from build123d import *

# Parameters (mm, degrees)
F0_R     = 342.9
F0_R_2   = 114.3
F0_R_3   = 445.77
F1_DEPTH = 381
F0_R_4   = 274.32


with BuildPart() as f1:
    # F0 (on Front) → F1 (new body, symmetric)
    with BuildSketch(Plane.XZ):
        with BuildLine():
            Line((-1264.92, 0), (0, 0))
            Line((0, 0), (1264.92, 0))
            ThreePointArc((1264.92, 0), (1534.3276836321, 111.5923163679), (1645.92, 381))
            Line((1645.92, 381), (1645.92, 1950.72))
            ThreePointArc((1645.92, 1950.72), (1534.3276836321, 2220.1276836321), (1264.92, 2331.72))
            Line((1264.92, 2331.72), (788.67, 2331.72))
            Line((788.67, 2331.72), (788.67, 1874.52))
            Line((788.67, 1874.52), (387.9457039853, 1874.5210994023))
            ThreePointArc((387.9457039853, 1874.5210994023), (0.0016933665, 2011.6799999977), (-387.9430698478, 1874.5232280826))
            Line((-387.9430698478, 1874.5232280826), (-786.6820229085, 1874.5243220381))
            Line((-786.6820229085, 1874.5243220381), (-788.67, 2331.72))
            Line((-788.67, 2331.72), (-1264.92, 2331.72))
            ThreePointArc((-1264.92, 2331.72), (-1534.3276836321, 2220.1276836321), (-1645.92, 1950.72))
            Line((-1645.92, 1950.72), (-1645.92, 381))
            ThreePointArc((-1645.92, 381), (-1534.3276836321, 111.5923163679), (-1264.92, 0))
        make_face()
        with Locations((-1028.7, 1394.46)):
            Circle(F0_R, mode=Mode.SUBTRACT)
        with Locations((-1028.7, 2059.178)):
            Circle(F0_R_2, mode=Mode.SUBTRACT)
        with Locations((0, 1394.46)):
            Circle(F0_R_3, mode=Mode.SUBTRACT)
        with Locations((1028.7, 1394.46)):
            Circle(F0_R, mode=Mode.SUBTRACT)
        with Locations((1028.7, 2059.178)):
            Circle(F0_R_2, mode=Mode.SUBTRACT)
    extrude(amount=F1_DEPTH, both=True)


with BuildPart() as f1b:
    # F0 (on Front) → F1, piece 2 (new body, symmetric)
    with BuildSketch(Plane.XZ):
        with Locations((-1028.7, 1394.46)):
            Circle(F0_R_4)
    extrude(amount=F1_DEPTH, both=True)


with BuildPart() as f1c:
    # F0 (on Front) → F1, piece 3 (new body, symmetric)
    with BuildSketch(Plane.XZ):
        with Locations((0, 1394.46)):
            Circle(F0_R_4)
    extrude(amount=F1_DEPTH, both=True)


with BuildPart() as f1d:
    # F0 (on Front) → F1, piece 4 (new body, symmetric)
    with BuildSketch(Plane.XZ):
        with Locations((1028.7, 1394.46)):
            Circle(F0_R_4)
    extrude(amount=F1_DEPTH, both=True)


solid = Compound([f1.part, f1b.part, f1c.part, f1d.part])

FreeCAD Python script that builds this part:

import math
import FreeCAD as App
import Part
import Sketcher
Q = App.Units.Quantity

doc = App.newDocument("Part")
body = doc.addObject("PartDesign::Body", "Body")

# Sketch on XZ plane
sketch1 = doc.addObject("Sketcher::SketchObject", "Sketch")
body.addObject(sketch1)
sketch1.AttachmentSupport = (doc.XZ_Plane, [""])
sketch1.MapMode = "FlatFace"
sketch1.addGeometry([
    Part.LineSegment(App.Vector(-1264.92, 0, 0), App.Vector(1264.92, 0, 0)),  # 0
    Part.ArcOfCircle(Part.Circle(App.Vector(1264.92, 381, 0), App.Vector(0, 0, 1), 381), math.radians(-90), math.radians(0)),  # 1
    Part.LineSegment(App.Vector(1645.92, 381, 0), App.Vector(1645.92, 1950.72, 0)),  # 2
    Part.ArcOfCircle(Part.Circle(App.Vector(1264.92, 1950.72, 0), App.Vector(0, 0, 1), 381), math.radians(0), math.radians(90)),  # 3
    Part.LineSegment(App.Vector(1264.92, 2331.72, 0), App.Vector(788.67, 2331.72, 0)),  # 4
    Part.LineSegment(App.Vector(788.67, 2331.72, 0), App.Vector(788.67, 1874.52, 0)),  # 5
    Part.LineSegment(App.Vector(788.67, 1874.52, 0), App.Vector(387.945704, 1874.521099, 0)),  # 6
    Part.ArcOfCircle(Part.Circle(App.Vector(0, 1394.46, 0), App.Vector(0, 0, 1), 617.22), math.radians(51.057721), math.radians(128.941965)),  # 7
    Part.LineSegment(App.Vector(-387.94307, 1874.523228, 0), App.Vector(-786.682023, 1874.524322, 0)),  # 8
    Part.LineSegment(App.Vector(-786.682023, 1874.524322, 0), App.Vector(-788.67, 2331.72, 0)),  # 9
    Part.LineSegment(App.Vector(-788.67, 2331.72, 0), App.Vector(-1264.92, 2331.72, 0)),  # 10
    Part.ArcOfCircle(Part.Circle(App.Vector(-1264.92, 1950.72, 0), App.Vector(0, 0, 1), 381), math.radians(90), math.radians(180)),  # 11
    Part.LineSegment(App.Vector(-1645.92, 1950.72, 0), App.Vector(-1645.92, 381, 0)),  # 12
    Part.ArcOfCircle(Part.Circle(App.Vector(-1264.92, 381, 0), App.Vector(0, 0, 1), 381), math.radians(180), math.radians(270)),  # 13
    Part.Circle(App.Vector(-1028.7, 1394.46, 0), App.Vector(0, 0, 1), 342.9),  # 14
    Part.Circle(App.Vector(0, 1394.46, 0), App.Vector(0, 0, 1), 445.77),  # 15
    Part.Circle(App.Vector(1028.7, 1394.46, 0), App.Vector(0, 0, 1), 342.9),  # 16
    Part.Circle(App.Vector(-1028.7, 2059.178, 0), App.Vector(0, 0, 1), 114.3),  # 17
    Part.Circle(App.Vector(1028.7, 2059.178, 0), App.Vector(0, 0, 1), 114.3),  # 18
], False)
sketch1.addConstraint([
    Sketcher.Constraint("Tangent", 0, 2, 1, 1),
    Sketcher.Constraint("Tangent", 1, 2, 2, 1),
    Sketcher.Constraint("Tangent", 2, 2, 3, 1),
    Sketcher.Constraint("Tangent", 3, 2, 4, 1),
    Sketcher.Constraint("Coincident", 4, 2, 5, 1),
    Sketcher.Constraint("Coincident", 5, 2, 6, 1),
    Sketcher.Constraint("Coincident", 6, 2, 7, 1),
    Sketcher.Constraint("Coincident", 7, 2, 8, 1),
    Sketcher.Constraint("Coincident", 8, 2, 9, 1),
    Sketcher.Constraint("Coincident", 9, 2, 10, 1),
    Sketcher.Constraint("Tangent", 10, 2, 11, 1),
    Sketcher.Constraint("Tangent", 11, 2, 12, 1),
    Sketcher.Constraint("Tangent", 12, 2, 13, 1),
    Sketcher.Constraint("Tangent", 13, 2, 0, 1),
    Sketcher.Constraint("Horizontal", 0),
    Sketcher.Constraint("Vertical", 2),
    Sketcher.Constraint("Horizontal", 4),
    Sketcher.Constraint("Vertical", 5),
    Sketcher.Constraint("Horizontal", 10),
    Sketcher.Constraint("Vertical", 12),
    Sketcher.Constraint("Coincident", 15, 3, 7, 3),
    Sketcher.Constraint("Equal", 1, 3),
    Sketcher.Constraint("Equal", 3, 11),
    Sketcher.Constraint("Equal", 11, 13),
    Sketcher.Constraint("Equal", 14, 16),
    Sketcher.Constraint("Equal", 17, 18),
    Sketcher.Constraint("Symmetric", 3, 3, 11, 3, -2),
    Sketcher.Constraint("Symmetric", 14, 3, 16, 3, -2),
    Sketcher.Constraint("Symmetric", 17, 3, 18, 3, -2),
    Sketcher.Constraint("PointOnObject", 7, 3, -2),
    Sketcher.Constraint("PointOnObject", 0, 2, -1),
    Sketcher.Constraint("Parallel", 6, 8),
    Sketcher.Constraint("Horizontal", 7, 3, 14, 3),
    Sketcher.Constraint("Vertical", 14, 3, 17, 3),
    Sketcher.Constraint("Equal", 4, 10),
    Sketcher.Constraint("Diameter", 14, Q("27 in")),
    Sketcher.Constraint("Diameter", 17, Q("9 in")),
    Sketcher.Constraint("Radius", 1, Q("15 in")),
    Sketcher.Constraint("Diameter", 15, Q("35.1 in")),
    Sketcher.Constraint("Radius", 7, Q("24.3 in")),
    Sketcher.Constraint("DistanceY", 5, 2, 5, 1, Q("18 in")),
    Sketcher.Constraint("Distance", 9, Q("18 in")),
    Sketcher.Constraint("DistanceX", 0, 1, 0, 2, Q("99.6 in")),
    Sketcher.Constraint("DistanceY", 2, 1, 2, 2, Q("61.8 in")),
    Sketcher.Constraint("DistanceX", 14, 3, 16, 3, Q("81 in")),
    Sketcher.Constraint("DistanceX", 4, 2, 4, 1, Q("18.75 in")),
    Sketcher.Constraint("DistanceY", -1, 1, 7, 3, Q("54.9 in")),
    Sketcher.Constraint("DistanceY", -1, 1, 17, 3, Q("81.07 in")),
    Sketcher.Constraint("DistanceY", -1, 1, 6, 2, 1874.521099),
    Sketcher.Constraint("Distance", 8, 398.738953),
])
pad1 = doc.addObject("PartDesign::Pad", "Pad")
body.addObject(pad1)
pad1.Profile = sketch1
pad1.Length = Q("30 in")
pad1.Midplane = True
body2 = doc.addObject("PartDesign::Body", "Body001")

# Sketch on XZ plane
sketch2 = doc.addObject("Sketcher::SketchObject", "Sketch001")
body2.addObject(sketch2)
sketch2.AttachmentSupport = (doc.getObject("XZ_Plane001"), [""])
sketch2.MapMode = "FlatFace"
sketch2.addGeometry(Part.Circle(App.Vector(-1028.7, 1394.46, 0), App.Vector(0, 0, 1), 274.32), False)
sketch2.addConstraint([
    Sketcher.Constraint("Diameter", 0, Q("21.6 in")),
    Sketcher.Constraint("DistanceX", 0, 3, -1, 1, Q("40.5 in")),
    Sketcher.Constraint("DistanceY", -1, 1, 0, 3, Q("54.9 in")),
])
pad2 = doc.addObject("PartDesign::Pad", "Pad001")
body2.addObject(pad2)
pad2.Profile = sketch2
pad2.Length = Q("30 in")
pad2.Midplane = True
body3 = doc.addObject("PartDesign::Body", "Body002")

# Sketch on XZ plane
sketch3 = doc.addObject("Sketcher::SketchObject", "Sketch002")
body3.addObject(sketch3)
sketch3.AttachmentSupport = (doc.getObject("XZ_Plane002"), [""])
sketch3.MapMode = "FlatFace"
sketch3.addGeometry(Part.Circle(App.Vector(0, 1394.46, 0), App.Vector(0, 0, 1), 274.32), False)
sketch3.addConstraint([
    Sketcher.Constraint("PointOnObject", 0, 3, -2),
    Sketcher.Constraint("Diameter", 0, Q("21.6 in")),
    Sketcher.Constraint("DistanceY", -1, 1, 0, 3, Q("54.9 in")),
])
pad3 = doc.addObject("PartDesign::Pad", "Pad002")
body3.addObject(pad3)
pad3.Profile = sketch3
pad3.Length = Q("30 in")
pad3.Midplane = True
body4 = doc.addObject("PartDesign::Body", "Body003")

# Sketch on XZ plane
sketch4 = doc.addObject("Sketcher::SketchObject", "Sketch003")
body4.addObject(sketch4)
sketch4.AttachmentSupport = (doc.getObject("XZ_Plane003"), [""])
sketch4.MapMode = "FlatFace"
sketch4.addGeometry(Part.Circle(App.Vector(1028.7, 1394.46, 0), App.Vector(0, 0, 1), 274.32), False)
sketch4.addConstraint([
    Sketcher.Constraint("Diameter", 0, Q("21.6 in")),
    Sketcher.Constraint("DistanceX", -1, 1, 0, 3, Q("40.5 in")),
    Sketcher.Constraint("DistanceY", -1, 1, 0, 3, Q("54.9 in")),
])
pad4 = doc.addObject("PartDesign::Pad", "Pad003")
body4.addObject(pad4)
pad4.Profile = sketch4
pad4.Length = Q("30 in")
pad4.Midplane = True

doc.recompute()
